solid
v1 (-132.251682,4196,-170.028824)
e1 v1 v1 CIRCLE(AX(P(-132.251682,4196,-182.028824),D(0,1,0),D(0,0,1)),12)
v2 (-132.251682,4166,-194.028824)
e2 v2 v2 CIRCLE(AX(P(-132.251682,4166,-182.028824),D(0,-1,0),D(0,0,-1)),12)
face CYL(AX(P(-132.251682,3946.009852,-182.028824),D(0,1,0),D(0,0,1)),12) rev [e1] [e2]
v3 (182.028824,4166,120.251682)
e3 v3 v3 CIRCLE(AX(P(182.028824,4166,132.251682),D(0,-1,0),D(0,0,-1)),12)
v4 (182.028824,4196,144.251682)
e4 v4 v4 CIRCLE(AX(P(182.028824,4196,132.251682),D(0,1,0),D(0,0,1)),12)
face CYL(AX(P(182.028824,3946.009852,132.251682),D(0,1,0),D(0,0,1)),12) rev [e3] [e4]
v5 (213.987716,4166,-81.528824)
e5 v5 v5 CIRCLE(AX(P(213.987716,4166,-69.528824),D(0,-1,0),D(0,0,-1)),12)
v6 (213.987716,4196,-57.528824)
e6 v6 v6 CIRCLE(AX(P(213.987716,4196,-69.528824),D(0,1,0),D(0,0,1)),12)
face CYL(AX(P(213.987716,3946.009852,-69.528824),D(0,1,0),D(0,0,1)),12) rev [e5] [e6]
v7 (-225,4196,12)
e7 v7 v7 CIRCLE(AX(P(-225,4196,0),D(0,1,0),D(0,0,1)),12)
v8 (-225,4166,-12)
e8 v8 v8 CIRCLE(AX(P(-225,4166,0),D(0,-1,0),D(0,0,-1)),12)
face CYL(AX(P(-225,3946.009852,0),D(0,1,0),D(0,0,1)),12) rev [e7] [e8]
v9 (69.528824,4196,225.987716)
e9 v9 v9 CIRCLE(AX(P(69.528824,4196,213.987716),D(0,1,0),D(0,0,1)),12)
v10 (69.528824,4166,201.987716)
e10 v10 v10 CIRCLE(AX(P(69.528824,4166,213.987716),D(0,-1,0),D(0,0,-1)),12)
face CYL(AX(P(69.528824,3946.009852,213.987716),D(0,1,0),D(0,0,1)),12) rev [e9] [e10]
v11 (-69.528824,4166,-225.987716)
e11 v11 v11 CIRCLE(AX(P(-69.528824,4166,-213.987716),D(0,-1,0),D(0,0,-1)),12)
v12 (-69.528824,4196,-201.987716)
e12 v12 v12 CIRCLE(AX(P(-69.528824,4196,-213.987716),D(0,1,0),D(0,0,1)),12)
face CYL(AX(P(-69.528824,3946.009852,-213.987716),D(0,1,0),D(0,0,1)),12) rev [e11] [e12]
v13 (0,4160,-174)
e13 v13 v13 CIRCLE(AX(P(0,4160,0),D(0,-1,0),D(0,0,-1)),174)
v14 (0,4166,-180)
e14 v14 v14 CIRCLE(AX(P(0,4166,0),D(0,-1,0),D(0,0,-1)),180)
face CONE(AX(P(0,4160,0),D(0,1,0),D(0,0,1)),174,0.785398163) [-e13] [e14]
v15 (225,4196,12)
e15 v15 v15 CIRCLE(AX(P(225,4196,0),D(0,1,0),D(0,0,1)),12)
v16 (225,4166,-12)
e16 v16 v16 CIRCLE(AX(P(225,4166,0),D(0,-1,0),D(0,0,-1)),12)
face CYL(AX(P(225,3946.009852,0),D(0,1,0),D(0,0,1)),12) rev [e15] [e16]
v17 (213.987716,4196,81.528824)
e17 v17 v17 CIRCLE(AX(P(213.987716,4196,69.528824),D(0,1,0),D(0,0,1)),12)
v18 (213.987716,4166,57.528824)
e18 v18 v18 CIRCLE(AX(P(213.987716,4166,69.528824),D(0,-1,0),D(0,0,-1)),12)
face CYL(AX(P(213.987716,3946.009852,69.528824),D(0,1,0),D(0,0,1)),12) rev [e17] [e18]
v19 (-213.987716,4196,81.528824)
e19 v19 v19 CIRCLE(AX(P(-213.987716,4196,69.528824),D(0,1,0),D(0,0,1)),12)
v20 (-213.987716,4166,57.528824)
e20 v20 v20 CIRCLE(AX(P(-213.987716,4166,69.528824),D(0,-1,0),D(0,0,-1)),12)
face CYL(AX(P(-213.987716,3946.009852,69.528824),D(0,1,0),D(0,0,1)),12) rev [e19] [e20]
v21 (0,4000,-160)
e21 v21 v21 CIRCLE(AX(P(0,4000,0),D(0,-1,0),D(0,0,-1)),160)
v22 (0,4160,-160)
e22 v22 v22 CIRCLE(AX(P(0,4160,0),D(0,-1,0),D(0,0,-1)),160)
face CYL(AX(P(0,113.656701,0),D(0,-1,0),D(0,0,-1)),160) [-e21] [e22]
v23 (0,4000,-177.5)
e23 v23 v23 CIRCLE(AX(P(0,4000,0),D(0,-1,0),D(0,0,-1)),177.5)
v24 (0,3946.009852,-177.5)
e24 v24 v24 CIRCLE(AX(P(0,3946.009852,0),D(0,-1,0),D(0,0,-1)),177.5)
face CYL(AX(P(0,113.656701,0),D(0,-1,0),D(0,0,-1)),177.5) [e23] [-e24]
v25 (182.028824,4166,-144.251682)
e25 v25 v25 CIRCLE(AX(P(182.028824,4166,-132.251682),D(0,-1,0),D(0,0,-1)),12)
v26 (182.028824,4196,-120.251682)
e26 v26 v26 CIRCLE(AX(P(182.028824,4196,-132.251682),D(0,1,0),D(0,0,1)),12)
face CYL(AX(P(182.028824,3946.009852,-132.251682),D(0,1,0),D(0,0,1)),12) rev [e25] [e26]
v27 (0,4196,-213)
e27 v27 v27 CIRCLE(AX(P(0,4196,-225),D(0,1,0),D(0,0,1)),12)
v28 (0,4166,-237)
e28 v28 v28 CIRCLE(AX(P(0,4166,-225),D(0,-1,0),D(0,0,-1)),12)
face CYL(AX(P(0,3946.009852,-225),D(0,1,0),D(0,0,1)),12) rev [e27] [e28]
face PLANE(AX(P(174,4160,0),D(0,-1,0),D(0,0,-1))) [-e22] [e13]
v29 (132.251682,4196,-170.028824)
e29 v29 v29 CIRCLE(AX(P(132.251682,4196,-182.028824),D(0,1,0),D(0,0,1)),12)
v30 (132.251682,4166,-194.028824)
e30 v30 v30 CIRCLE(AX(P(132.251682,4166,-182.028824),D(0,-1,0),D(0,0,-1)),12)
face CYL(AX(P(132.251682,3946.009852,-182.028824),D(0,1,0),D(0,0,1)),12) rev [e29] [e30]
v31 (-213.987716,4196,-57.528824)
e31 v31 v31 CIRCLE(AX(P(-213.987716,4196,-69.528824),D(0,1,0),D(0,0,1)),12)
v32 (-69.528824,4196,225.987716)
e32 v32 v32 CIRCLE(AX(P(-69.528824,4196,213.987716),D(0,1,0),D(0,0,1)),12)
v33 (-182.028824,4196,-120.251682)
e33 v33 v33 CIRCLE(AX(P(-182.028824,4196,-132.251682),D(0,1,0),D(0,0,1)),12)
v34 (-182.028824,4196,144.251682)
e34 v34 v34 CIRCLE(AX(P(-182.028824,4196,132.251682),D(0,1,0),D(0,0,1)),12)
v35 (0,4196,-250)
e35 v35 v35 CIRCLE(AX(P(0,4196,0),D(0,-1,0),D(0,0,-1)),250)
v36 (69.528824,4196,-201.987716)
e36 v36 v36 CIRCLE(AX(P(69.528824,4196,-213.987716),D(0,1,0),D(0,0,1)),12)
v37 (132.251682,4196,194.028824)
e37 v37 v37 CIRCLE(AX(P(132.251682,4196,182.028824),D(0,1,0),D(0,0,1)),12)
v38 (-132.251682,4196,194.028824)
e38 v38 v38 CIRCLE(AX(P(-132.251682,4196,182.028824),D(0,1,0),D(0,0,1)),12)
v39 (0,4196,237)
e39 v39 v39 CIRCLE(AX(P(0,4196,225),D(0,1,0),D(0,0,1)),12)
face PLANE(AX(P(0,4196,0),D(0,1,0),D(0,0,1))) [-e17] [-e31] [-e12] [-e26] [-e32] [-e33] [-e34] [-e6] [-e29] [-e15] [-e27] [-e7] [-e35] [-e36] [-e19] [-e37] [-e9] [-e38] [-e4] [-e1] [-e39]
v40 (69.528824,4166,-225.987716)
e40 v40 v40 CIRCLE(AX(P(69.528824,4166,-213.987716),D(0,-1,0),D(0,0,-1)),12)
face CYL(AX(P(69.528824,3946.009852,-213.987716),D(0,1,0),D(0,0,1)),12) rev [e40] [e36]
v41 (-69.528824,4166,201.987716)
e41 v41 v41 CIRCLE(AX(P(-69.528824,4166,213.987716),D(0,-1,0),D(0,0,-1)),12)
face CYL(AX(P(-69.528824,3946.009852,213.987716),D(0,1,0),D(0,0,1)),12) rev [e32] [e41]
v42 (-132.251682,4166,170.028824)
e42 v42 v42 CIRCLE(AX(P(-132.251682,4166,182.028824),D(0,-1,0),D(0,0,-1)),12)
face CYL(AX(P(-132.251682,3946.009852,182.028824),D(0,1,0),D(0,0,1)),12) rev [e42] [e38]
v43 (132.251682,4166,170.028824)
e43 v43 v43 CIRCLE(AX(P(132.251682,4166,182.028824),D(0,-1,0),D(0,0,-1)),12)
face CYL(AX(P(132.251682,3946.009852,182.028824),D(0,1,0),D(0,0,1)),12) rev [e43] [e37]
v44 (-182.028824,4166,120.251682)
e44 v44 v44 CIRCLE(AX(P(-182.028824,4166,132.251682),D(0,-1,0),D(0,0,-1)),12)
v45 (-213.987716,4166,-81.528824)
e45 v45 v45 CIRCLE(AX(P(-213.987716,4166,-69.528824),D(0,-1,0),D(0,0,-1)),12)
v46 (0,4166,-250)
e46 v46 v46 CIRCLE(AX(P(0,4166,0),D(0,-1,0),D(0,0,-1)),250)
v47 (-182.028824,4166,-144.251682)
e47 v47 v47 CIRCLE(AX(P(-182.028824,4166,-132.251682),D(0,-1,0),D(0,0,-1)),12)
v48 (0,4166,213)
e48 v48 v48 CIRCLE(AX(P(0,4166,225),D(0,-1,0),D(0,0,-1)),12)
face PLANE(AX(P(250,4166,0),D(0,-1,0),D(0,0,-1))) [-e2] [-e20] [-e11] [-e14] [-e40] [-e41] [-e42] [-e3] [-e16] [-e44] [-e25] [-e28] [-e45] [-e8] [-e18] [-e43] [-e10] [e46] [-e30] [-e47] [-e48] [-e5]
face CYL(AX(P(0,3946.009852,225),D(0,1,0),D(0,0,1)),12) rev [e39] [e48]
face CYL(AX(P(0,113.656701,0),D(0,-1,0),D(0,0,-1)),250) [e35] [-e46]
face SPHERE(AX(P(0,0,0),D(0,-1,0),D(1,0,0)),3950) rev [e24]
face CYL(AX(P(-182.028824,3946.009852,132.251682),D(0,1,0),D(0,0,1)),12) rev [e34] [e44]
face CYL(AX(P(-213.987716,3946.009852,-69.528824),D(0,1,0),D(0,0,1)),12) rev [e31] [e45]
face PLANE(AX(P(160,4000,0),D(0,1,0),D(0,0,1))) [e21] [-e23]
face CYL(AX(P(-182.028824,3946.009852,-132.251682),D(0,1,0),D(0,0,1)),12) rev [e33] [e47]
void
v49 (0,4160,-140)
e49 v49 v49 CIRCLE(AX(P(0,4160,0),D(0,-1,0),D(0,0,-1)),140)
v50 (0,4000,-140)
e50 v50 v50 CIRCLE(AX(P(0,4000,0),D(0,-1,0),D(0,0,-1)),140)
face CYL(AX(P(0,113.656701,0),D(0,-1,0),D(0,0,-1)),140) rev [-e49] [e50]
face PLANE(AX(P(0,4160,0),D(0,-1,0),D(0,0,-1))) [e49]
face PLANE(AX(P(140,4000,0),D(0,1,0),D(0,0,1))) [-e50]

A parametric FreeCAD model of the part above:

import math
import FreeCAD as App
import Part
import Sketcher
Q = App.Units.Quantity

doc = App.newDocument("Part")
body = doc.addObject("PartDesign::Body", "Body")

# Sketch on XY plane
sketch1 = doc.addObject("Sketcher::SketchObject", "Sketch")
body.addObject(sketch1)
sketch1.AttachmentSupport = (doc.XY_Plane, [""])
sketch1.MapMode = "FlatFace"
sketch1.addGeometry([
    Part.LineSegment(App.Vector(250, 4196, 0), App.Vector(0, 4196, 0)),  # 0
    Part.LineSegment(App.Vector(0, 4196, 0), App.Vector(0, 4160, 0)),  # 1
    Part.LineSegment(App.Vector(0, 4160, 0), App.Vector(140, 4160, 0)),  # 2
    Part.LineSegment(App.Vector(140, 4160, 0), App.Vector(140, 4000, 0)),  # 3
    Part.LineSegment(App.Vector(140, 4000, 0), App.Vector(0, 4000, 0)),  # 4
    Part.LineSegment(App.Vector(0, 4000, 0), App.Vector(0, 3950, 0)),  # 5
    Part.ArcOfCircle(Part.Circle(App.Vector(0, 0, 0), App.Vector(0, 0, 1), 3950), math.radians(87.42), math.radians(90)),  # 6
    Part.LineSegment(App.Vector(178, 3946, 0), App.Vector(178, 4000, 0)),  # 7
    Part.LineSegment(App.Vector(178, 4000, 0), App.Vector(160, 4000, 0)),  # 8
    Part.LineSegment(App.Vector(160, 4000, 0), App.Vector(160, 4160, 0)),  # 9
    Part.LineSegment(App.Vector(160, 4160, 0), App.Vector(174, 4160, 0)),  # 10
    Part.LineSegment(App.Vector(174, 4160, 0), App.Vector(180, 4166, 0)),  # 11
    Part.LineSegment(App.Vector(180, 4166, 0), App.Vector(250, 4166, 0)),  # 12
    Part.LineSegment(App.Vector(250, 4166, 0), App.Vector(250, 4196, 0)),  # 13
], False)
sketch1.addConstraint([
    Sketcher.Constraint("Coincident", 0, 2, 1, 1),
    Sketcher.Constraint("Coincident", 1, 2, 2, 1),
    Sketcher.Constraint("Coincident", 2, 2, 3, 1),
    Sketcher.Constraint("Coincident", 3, 2, 4, 1),
    Sketcher.Constraint("Coincident", 4, 2, 5, 1),
    Sketcher.Constraint("Coincident", 5, 2, 6, 2),
    Sketcher.Constraint("Coincident", 6, 1, 7, 1),
    Sketcher.Constraint("Coincident", 7, 2, 8, 1),
    Sketcher.Constraint("Coincident", 8, 2, 9, 1),
    Sketcher.Constraint("Coincident", 9, 2, 10, 1),
    Sketcher.Constraint("Coincident", 10, 2, 11, 1),
    Sketcher.Constraint("Coincident", 11, 2, 12, 1),
    Sketcher.Constraint("Coincident", 12, 2, 13, 1),
    Sketcher.Constraint("Coincident", 13, 2, 0, 1),
    Sketcher.Constraint("Horizontal", 0),
    Sketcher.Constraint("Vertical", 1),
    Sketcher.Constraint("Horizontal", 2),
    Sketcher.Constraint("Vertical", 3),
    Sketcher.Constraint("Horizontal", 4),
    Sketcher.Constraint("Vertical", 5),
    Sketcher.Constraint("Vertical", 7),
    Sketcher.Constraint("Horizontal", 8),
    Sketcher.Constraint("Vertical", 9),
    Sketcher.Constraint("Horizontal", 10),
    Sketcher.Constraint("Horizontal", 12),
    Sketcher.Constraint("Vertical", 13),
    Sketcher.Constraint("Coincident", 6, 3, -1, 1),
    Sketcher.Constraint("PointOnObject", 0, 2, -2),
    Sketcher.Constraint("PointOnObject", 4, 2, -2),
    Sketcher.Constraint("Horizontal", 4, 2, 7, 2),
    Sketcher.Constraint("Horizontal", 2, 2, 9, 2),
    Sketcher.Constraint("Radius", 6, 3949.999998),
    Sketcher.Constraint("DistanceX", 0, 2, 0, 1, 250.0),
    Sketcher.Constraint("DistanceX", 2, 1, 2, 2, 140.0),
    Sketcher.Constraint("DistanceX", 10, 1, 10, 2, 14.0),
    Sketcher.Constraint("DistanceX", 12, 1, 12, 2, 70.0),
    Sketcher.Constraint("DistanceY", 1, 2, 1, 1, 36.0),
    Sketcher.Constraint("DistanceY", 3, 2, 3, 1, 160.0),
    Sketcher.Constraint("DistanceY", 5, 2, 5, 1, 50.0),
    Sketcher.Constraint("DistanceY", 13, 1, 13, 2, 30.0),
    Sketcher.Constraint("Angle", 11, Q("45 deg")),
    Sketcher.Constraint("DistanceX", 8, 2, 8, 1, 17.5),
])
revolution = doc.addObject("PartDesign::Revolution", "Revolution")
body.addObject(revolution)
revolution.Profile = sketch1
revolution.ReferenceAxis = (sketch1, ["V_Axis"])
revolution.Angle = 360

# Sketch on XZ plane
sketch2 = doc.addObject("Sketcher::SketchObject", "Sketch001")
body.addObject(sketch2)
sketch2.AttachmentSupport = (doc.XZ_Plane, [""])
sketch2.MapMode = "FlatFace"
sketch2.AttachmentOffset = App.Placement(App.Vector(0, 0, -4196), App.Rotation())
sketch2.addGeometry([
    Part.Circle(App.Vector(0, -225, 0), App.Vector(0, 0, 1), 12),  # 0
    Part.Circle(App.Vector(70, -214, 0), App.Vector(0, 0, 1), 12),  # 1
    Part.Circle(App.Vector(132, -182, 0), App.Vector(0, 0, 1), 12),  # 2
    Part.Circle(App.Vector(182, -132, 0), App.Vector(0, 0, 1), 12),  # 3
    Part.Circle(App.Vector(214, -70, 0), App.Vector(0, 0, 1), 12),  # 4
    Part.Circle(App.Vector(225, 0, 0), App.Vector(0, 0, 1), 12),  # 5
    Part.Circle(App.Vector(214, 70, 0), App.Vector(0, 0, 1), 12),  # 6
    Part.Circle(App.Vector(182, 132, 0), App.Vector(0, 0, 1), 12),  # 7
    Part.Circle(App.Vector(132, 182, 0), App.Vector(0, 0, 1), 12),  # 8
    Part.Circle(App.Vector(70, 214, 0), App.Vector(0, 0, 1), 12),  # 9
    Part.Circle(App.Vector(0, 225, 0), App.Vector(0, 0, 1), 12),  # 10
    Part.Circle(App.Vector(-70, 214, 0), App.Vector(0, 0, 1), 12),  # 11
    Part.Circle(App.Vector(-132, 182, 0), App.Vector(0, 0, 1), 12),  # 12
    Part.Circle(App.Vector(-182, 132, 0), App.Vector(0, 0, 1), 12),  # 13
    Part.Circle(App.Vector(-214, 70, 0), App.Vector(0, 0, 1), 12),  # 14
    Part.Circle(App.Vector(-225, 0, 0), App.Vector(0, 0, 1), 12),  # 15
    Part.Circle(App.Vector(-214, -70, 0), App.Vector(0, 0, 1), 12),  # 16
    Part.Circle(App.Vector(-182, -132, 0), App.Vector(0, 0, 1), 12),  # 17
    Part.Circle(App.Vector(-132, -182, 0), App.Vector(0, 0, 1), 12),  # 18
    Part.Circle(App.Vector(-70, -214, 0), App.Vector(0, 0, 1), 12),  # 19
], False)
sketch2.addConstraint([
    Sketcher.Constraint("Equal", 0, 1),
    Sketcher.Constraint("Equal", 1, 2),
    Sketcher.Constraint("Equal", 2, 3),
    Sketcher.Constraint("Equal", 3, 4),
    Sketcher.Constraint("Equal", 4, 5),
    Sketcher.Constraint("Equal", 5, 6),
    Sketcher.Constraint("Equal", 6, 7),
    Sketcher.Constraint("Equal", 7, 8),
    Sketcher.Constraint("Equal", 8, 9),
    Sketcher.Constraint("Equal", 9, 10),
    Sketcher.Constraint("Equal", 10, 11),
    Sketcher.Constraint("Equal", 11, 12),
    Sketcher.Constraint("Equal", 12, 13),
    Sketcher.Constraint("Equal", 13, 14),
    Sketcher.Constraint("Equal", 14, 15),
    Sketcher.Constraint("Equal", 15, 16),
    Sketcher.Constraint("Equal", 16, 17),
    Sketcher.Constraint("Equal", 17, 18),
    Sketcher.Constraint("Equal", 18, 19),
    Sketcher.Constraint("Symmetric", 0, 3, 10, 3, -1, 1),
    Sketcher.Constraint("Symmetric", 1, 3, 11, 3, -1, 1),
    Sketcher.Constraint("Symmetric", 2, 3, 12, 3, -1, 1),
    Sketcher.Constraint("Symmetric", 3, 3, 13, 3, -1, 1),
    Sketcher.Constraint("Symmetric", 4, 3, 14, 3, -1, 1),
    Sketcher.Constraint("Symmetric", 5, 3, 15, 3, -1, 1),
    Sketcher.Constraint("Symmetric", 6, 3, 16, 3, -1, 1),
    Sketcher.Constraint("Symmetric", 7, 3, 17, 3, -1, 1),
    Sketcher.Constraint("Symmetric", 8, 3, 18, 3, -1, 1),
    Sketcher.Constraint("Symmetric", 9, 3, 19, 3, -1, 1),
    Sketcher.Constraint("Symmetric", 9, 3, 11, 3, -2),
    Sketcher.Constraint("Symmetric", 8, 3, 12, 3, -2),
    Sketcher.Constraint("Symmetric", 7, 3, 13, 3, -2),
    Sketcher.Constraint("Symmetric", 6, 3, 14, 3, -2),
    Sketcher.Constraint("PointOnObject", 0, 3, -2),
    Sketcher.Constraint("PointOnObject", 5, 3, -1),
    Sketcher.Constraint("Diameter", 0, 24.0),
    Sketcher.Constraint("DistanceY", 0, 3, -1, 1, 225.0),
    Sketcher.Constraint("DistanceX", -1, 1, 5, 3, 225.0),
    Sketcher.Constraint("DistanceX", 1, 3, 3, 3, 112.5),
    Sketcher.Constraint("DistanceY", 2, 3, 4, 3, 112.5),
    Sketcher.Constraint("DistanceX", -1, 1, 2, 3, 132.251682),
    Sketcher.Constraint("DistanceY", 3, 3, -1, 1, 132.251682),
    Sketcher.Constraint("DistanceX", 1, 3, 2, 3, 62.722858),
    Sketcher.Constraint("DistanceY", 2, 3, 3, 3, 49.777142),
    Sketcher.Constraint("DistanceY", 1, 3, 6, 3, 283.51654),
    Sketcher.Constraint("DistanceX", 11, 3, 6, 3, 283.51654),
])
pocket1 = doc.addObject("PartDesign::Pocket", "Pocket")
body.addObject(pocket1)
pocket1.Profile = sketch2
pocket1.Type = "ThroughAll"
pocket1.Reversed = True

doc.recompute()
